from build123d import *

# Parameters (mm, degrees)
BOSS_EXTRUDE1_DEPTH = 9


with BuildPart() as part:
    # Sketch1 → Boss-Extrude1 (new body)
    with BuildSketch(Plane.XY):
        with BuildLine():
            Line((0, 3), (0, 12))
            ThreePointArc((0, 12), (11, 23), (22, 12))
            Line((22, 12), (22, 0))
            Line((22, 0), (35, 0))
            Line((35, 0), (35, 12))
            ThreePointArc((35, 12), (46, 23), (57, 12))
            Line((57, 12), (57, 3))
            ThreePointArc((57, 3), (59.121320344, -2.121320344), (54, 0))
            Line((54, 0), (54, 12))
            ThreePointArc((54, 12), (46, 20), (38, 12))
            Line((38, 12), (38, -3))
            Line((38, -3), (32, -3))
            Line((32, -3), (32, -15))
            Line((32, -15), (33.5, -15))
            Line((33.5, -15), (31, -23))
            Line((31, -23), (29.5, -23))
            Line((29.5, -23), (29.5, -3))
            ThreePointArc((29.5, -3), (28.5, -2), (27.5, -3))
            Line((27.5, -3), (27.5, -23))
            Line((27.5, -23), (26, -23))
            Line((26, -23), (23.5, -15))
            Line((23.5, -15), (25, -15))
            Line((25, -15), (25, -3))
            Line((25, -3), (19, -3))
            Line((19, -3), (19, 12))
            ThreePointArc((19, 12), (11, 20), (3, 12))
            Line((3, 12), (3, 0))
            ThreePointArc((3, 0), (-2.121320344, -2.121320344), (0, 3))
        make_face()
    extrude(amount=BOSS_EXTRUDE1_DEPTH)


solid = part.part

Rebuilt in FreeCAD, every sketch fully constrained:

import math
import FreeCAD as App
import Part
import Sketcher
from FreeCAD import Vector
Q = App.Units.Quantity

doc = App.newDocument("Part")
body = doc.addObject("PartDesign::Body", "Body")

sketch1 = body.newObject("Sketcher::SketchObject", "Sketch")
sketch1.AttachmentSupport = (doc.getObject("XY_Plane"), [""])
sketch1.MapMode = "FlatFace"
sketch1.addGeometry(Part.LineSegment(Vector(0, 12, 0), Vector(0, 3, 0)), False)
sketch1.addGeometry(Part.ArcOfCircle(Part.Circle(Vector(0, 0, 0), Vector(0, 0, 1), 3), math.radians(90), math.radians(360)), False)
sketch1.addGeometry(Part.LineSegment(Vector(3, 0, 0), Vector(3, 12, 0)), False)
sketch1.addGeometry(Part.ArcOfCircle(Part.Circle(Vector(11, 12, 0), Vector(0, 0, 1), 8), math.radians(0), math.radians(180)), False)
sketch1.addGeometry(Part.LineSegment(Vector(19, 12, 0), Vector(19, -3, 0)), False)
sketch1.addGeometry(Part.LineSegment(Vector(19, -3, 0), Vector(25, -3, 0)), False)
sketch1.addGeometry(Part.LineSegment(Vector(25, -3, 0), Vector(25, -15, 0)), False)
sketch1.addGeometry(Part.LineSegment(Vector(25, -15, 0), Vector(23.5, -15, 0)), False)
sketch1.addGeometry(Part.LineSegment(Vector(23.5, -15, 0), Vector(26, -23, 0)), False)
sketch1.addGeometry(Part.LineSegment(Vector(26, -23, 0), Vector(27.5, -23, 0)), False)
sketch1.addGeometry(Part.LineSegment(Vector(27.5, -23, 0), Vector(27.5, -3, 0)), False)
sketch1.addGeometry(Part.ArcOfCircle(Part.Circle(Vector(28.5, -3, 0), Vector(0, 0, 1), 1), math.radians(0), math.radians(180)), False)
sketch1.addGeometry(Part.LineSegment(Vector(29.5, -3, 0), Vector(29.5, -23, 0)), False)
sketch1.addGeometry(Part.LineSegment(Vector(29.5, -23, 0), Vector(31, -23, 0)), False)
sketch1.addGeometry(Part.LineSegment(Vector(31, -23, 0), Vector(33.5, -15, 0)), False)
sketch1.addGeometry(Part.LineSegment(Vector(33.5, -15, 0), Vector(32, -15, 0)), False)
sketch1.addGeometry(Part.LineSegment(Vector(32, -15, 0), Vector(32, -3, 0)), False)
sketch1.addGeometry(Part.LineSegment(Vector(32, -3, 0), Vector(38, -3, 0)), False)
sketch1.addGeometry(Part.LineSegment(Vector(38, -3, 0), Vector(38, 12, 0)), False)
sketch1.addGeometry(Part.ArcOfCircle(Part.Circle(Vector(46, 12, 0), Vector(0, 0, 1), 8), math.radians(0), math.radians(180)), False)
sketch1.addGeometry(Part.LineSegment(Vector(54, 12, 0), Vector(54, 0, 0)), False)
sketch1.addGeometry(Part.ArcOfCircle(Part.Circle(Vector(57, 0, 0), Vector(0, 0, 1), 3), math.radians(180), math.radians(450)), False)
sketch1.addGeometry(Part.LineSegment(Vector(57, 3, 0), Vector(57, 12, 0)), False)
sketch1.addGeometry(Part.ArcOfCircle(Part.Circle(Vector(46, 12, 0), Vector(0, 0, 1), 11), math.radians(0), math.radians(180)), False)
sketch1.addGeometry(Part.LineSegment(Vector(35, 12, 0), Vector(35, 0, 0)), False)
sketch1.addGeometry(Part.LineSegment(Vector(35, 0, 0), Vector(22, 0, 0)), False)
sketch1.addGeometry(Part.LineSegment(Vector(22, 0, 0), Vector(22, 12, 0)), False)
sketch1.addGeometry(Part.ArcOfCircle(Part.Circle(Vector(11, 12, 0), Vector(0, 0, 1), 11), math.radians(0), math.radians(180)), False)
sketch1.addConstraint(Sketcher.Constraint("Coincident", 0, 2, 1, 1))
sketch1.addConstraint(Sketcher.Constraint("Tangent", 1, 2, 2, 1))
sketch1.addConstraint(Sketcher.Constraint("Tangent", 2, 2, 3, 2))
sketch1.addConstraint(Sketcher.Constraint("Tangent", 3, 1, 4, 1))
sketch1.addConstraint(Sketcher.Constraint("Coincident", 4, 2, 5, 1))
sketch1.addConstraint(Sketcher.Constraint("Coincident", 5, 2, 6, 1))
sketch1.addConstraint(Sketcher.Constraint("Coincident", 6, 2, 7, 1))
sketch1.addConstraint(Sketcher.Constraint("Coincident", 7, 2, 8, 1))
sketch1.addConstraint(Sketcher.Constraint("Coincident", 8, 2, 9, 1))
sketch1.addConstraint(Sketcher.Constraint("Coincident", 9, 2, 10, 1))
sketch1.addConstraint(Sketcher.Constraint("Tangent", 10, 2, 11, 2))
sketch1.addConstraint(Sketcher.Constraint("Tangent", 11, 1, 12, 1))
sketch1.addConstraint(Sketcher.Constraint("Coincident", 12, 2, 13, 1))
sketch1.addConstraint(Sketcher.Constraint("Coincident", 13, 2, 14, 1))
sketch1.addConstraint(Sketcher.Constraint("Coincident", 14, 2, 15, 1))
sketch1.addConstraint(Sketcher.Constraint("Coincident", 15, 2, 16, 1))
sketch1.addConstraint(Sketcher.Constraint("Coincident", 16, 2, 17, 1))
sketch1.addConstraint(Sketcher.Constraint("Coincident", 17, 2, 18, 1))
sketch1.addConstraint(Sketcher.Constraint("Tangent", 18, 2, 19, 2))
sketch1.addConstraint(Sketcher.Constraint("Tangent", 19, 1, 20, 1))
sketch1.addConstraint(Sketcher.Constraint("Tangent", 20, 2, 21, 1))
sketch1.addConstraint(Sketcher.Constraint("Coincident", 21, 2, 22, 1))
sketch1.addConstraint(Sketcher.Constraint("Tangent", 22, 2, 23, 1))
sketch1.addConstraint(Sketcher.Constraint("Tangent", 23, 2, 24, 1))
sketch1.addConstraint(Sketcher.Constraint("Coincident", 24, 2, 25, 1))
sketch1.addConstraint(Sketcher.Constraint("Coincident", 25, 2, 26, 1))
sketch1.addConstraint(Sketcher.Constraint("Tangent", 26, 2, 27, 1))
sketch1.addConstraint(Sketcher.Constraint("Tangent", 27, 2, 0, 1))
sketch1.addConstraint(Sketcher.Constraint("Vertical", 0))
sketch1.addConstraint(Sketcher.Constraint("Vertical", 2))
sketch1.addConstraint(Sketcher.Constraint("Vertical", 4))
sketch1.addConstraint(Sketcher.Constraint("Horizontal", 5))
sketch1.addConstraint(Sketcher.Constraint("Vertical", 6))
sketch1.addConstraint(Sketcher.Constraint("Horizontal", 7))
sketch1.addConstraint(Sketcher.Constraint("Horizontal", 9))
sketch1.addConstraint(Sketcher.Constraint("Vertical", 10))
sketch1.addConstraint(Sketcher.Constraint("Vertical", 12))
sketch1.addConstraint(Sketcher.Constraint("Horizontal", 13))
sketch1.addConstraint(Sketcher.Constraint("Horizontal", 15))
sketch1.addConstraint(Sketcher.Constraint("Vertical", 16))
sketch1.addConstraint(Sketcher.Constraint("Horizontal", 17))
sketch1.addConstraint(Sketcher.Constraint("Vertical", 18))
sketch1.addConstraint(Sketcher.Constraint("Vertical", 20))
sketch1.addConstraint(Sketcher.Constraint("Vertical", 22))
sketch1.addConstraint(Sketcher.Constraint("Vertical", 24))
sketch1.addConstraint(Sketcher.Constraint("Horizontal", 25))
sketch1.addConstraint(Sketcher.Constraint("Vertical", 26))
sketch1.addConstraint(Sketcher.Constraint("Coincident", 1, 3, -1, 1))
sketch1.addConstraint(Sketcher.Constraint("Coincident", 23, 3, 19, 3))
sketch1.addConstraint(Sketcher.Constraint("Coincident", 27, 3, 3, 3))
sketch1.addConstraint(Sketcher.Constraint("Equal", 3, 19))
sketch1.addConstraint(Sketcher.Constraint("Equal", 1, 21))
sketch1.addConstraint(Sketcher.Constraint("Equal", 23, 27))
sketch1.addConstraint(Sketcher.Constraint("PointOnObject", 21, 3, -1))
sketch1.addConstraint(Sketcher.Constraint("PointOnObject", 0, 2, -2))
sketch1.addConstraint(Sketcher.Constraint("PointOnObject", 24, 2, -1))
sketch1.addConstraint(Sketcher.Constraint("Horizontal", 3, 3, 19, 3))
sketch1.addConstraint(Sketcher.Constraint("Horizontal", 11, 3, 4, 2))
sketch1.addConstraint(Sketcher.Constraint("Horizontal", 9, 2, 12, 2))
sketch1.addConstraint(Sketcher.Constraint("Horizontal", 7, 2, 14, 2))
sketch1.addConstraint(Sketcher.Constraint("Horizontal", 11, 1, 16, 2))
sketch1.addConstraint(Sketcher.Constraint("Equal", 7, 9))
sketch1.addConstraint(Sketcher.Constraint("Equal", 9, 13))
sketch1.addConstraint(Sketcher.Constraint("Equal", 13, 15))
sketch1.addConstraint(Sketcher.Constraint("Equal", 5, 17))
sketch1.addConstraint(Sketcher.Constraint("Equal", 2, 6))
sketch1.addConstraint(Sketcher.Constraint("Equal", 8, 14))
sketch1.addConstraint(Sketcher.Constraint("Radius", 1, Q("3 mm")))
sketch1.addConstraint(Sketcher.Constraint("Radius", 3, Q("8 mm")))
sketch1.addConstraint(Sketcher.Constraint("Radius", 11, Q("1 mm")))
sketch1.addConstraint(Sketcher.Constraint("DistanceX", 5, 1, 5, 2, Q("6 mm")))
sketch1.addConstraint(Sketcher.Constraint("DistanceX", 25, 2, 25, 1, Q("13 mm")))
sketch1.addConstraint(Sketcher.Constraint("DistanceY", 0, 2, 0, 1, Q("9 mm")))
sketch1.addConstraint(Sketcher.Constraint("DistanceY", 4, 2, 4, 1, Q("15 mm")))
sketch1.addConstraint(Sketcher.Constraint("DistanceY", 10, 1, 10, 2, Q("20 mm")))
sketch1.addConstraint(Sketcher.Constraint("DistanceX", 7, 2, 7, 1, Q("1.5 mm")))
pad1 = body.newObject("PartDesign::Pad", "Pad")
pad1.Profile = sketch1
pad1.Length = 9

doc.recompute()
